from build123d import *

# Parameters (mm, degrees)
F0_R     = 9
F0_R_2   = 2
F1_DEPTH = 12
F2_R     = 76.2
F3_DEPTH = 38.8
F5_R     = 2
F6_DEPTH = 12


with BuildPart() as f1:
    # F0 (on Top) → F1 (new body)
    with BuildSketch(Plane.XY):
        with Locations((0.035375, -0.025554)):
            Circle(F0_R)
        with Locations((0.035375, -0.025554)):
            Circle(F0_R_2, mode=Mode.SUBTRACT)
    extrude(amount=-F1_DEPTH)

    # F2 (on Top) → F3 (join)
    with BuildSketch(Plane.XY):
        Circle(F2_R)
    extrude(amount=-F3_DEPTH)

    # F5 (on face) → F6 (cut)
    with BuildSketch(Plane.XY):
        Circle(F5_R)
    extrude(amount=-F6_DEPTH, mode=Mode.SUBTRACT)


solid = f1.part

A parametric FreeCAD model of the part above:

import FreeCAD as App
import Part
import Sketcher

V = App.Vector
Q = App.Units.Quantity

doc = App.newDocument("Part")
params = doc.addObject("Spreadsheet::Sheet", "Params")
for row, (alias, value) in enumerate([
    ("sketch1_diameter", "18 mm"),
    ("sketch1_diameter2", "4 mm"),
    ("pad1_length", "12 mm"),
    ("sketch2_diameter", "152.4 mm"),
    ("pad2_length", "38.8 mm"),
    ("sketch3_diameter", "4 mm"),
    ("pocket1_length", "12 mm"),
], start=1):
    params.set(f"A{row}", alias)
    params.set(f"B{row}", "=" + value)
    params.setAlias(f"B{row}", alias)

body = doc.addObject("PartDesign::Body", "Body")

sketch1 = doc.addObject("Sketcher::SketchObject", "Sketch")
body.addObject(sketch1)
sketch1.AttachmentSupport = (doc.XY_Plane, [""])
sketch1.MapMode = "FlatFace"
sketch1.addGeometry([
    Part.Circle(V(0, 0, 0), V(0, 0, 1), 9),
    Part.Circle(V(0, 0, 0), V(0, 0, 1), 2),
], False)
sketch1.addConstraint([
    Sketcher.Constraint("Coincident", 1, 3, 0, 3),
    Sketcher.Constraint("Diameter", 0, Q("18 mm")),
    Sketcher.Constraint("Diameter", 1, Q("4 mm")),
    Sketcher.Constraint("DistanceX", -1, 1, 0, 3, Q("0.035375 mm")),
    Sketcher.Constraint("DistanceY", 0, 3, -1, 1, Q("0.025554 mm")),
])
sketch1.setExpression("Constraints[1]", "Params.sketch1_diameter")
sketch1.setExpression("Constraints[2]", "Params.sketch1_diameter2")
pad1 = doc.addObject("PartDesign::Pad", "Pad")
body.addObject(pad1)
pad1.Profile = sketch1
pad1.setExpression("Length", "Params.pad1_length")
pad1.Reversed = True

sketch2 = doc.addObject("Sketcher::SketchObject", "Sketch001")
body.addObject(sketch2)
sketch2.AttachmentSupport = (doc.XY_Plane, [""])
sketch2.MapMode = "FlatFace"
sketch2.addGeometry(Part.Circle(V(0, 0, 0), V(0, 0, 1), 76), False)
sketch2.addConstraint([
    Sketcher.Constraint("Coincident", 0, 3, -1, 1),
    Sketcher.Constraint("Diameter", 0, Q("152.4 mm")),
])
sketch2.setExpression("Constraints[1]", "Params.sketch2_diameter")
pad2 = doc.addObject("PartDesign::Pad", "Pad001")
body.addObject(pad2)
pad2.Profile = sketch2
pad2.setExpression("Length", "Params.pad2_length")
pad2.Reversed = True

sketch3 = doc.addObject("Sketcher::SketchObject", "Sketch002")
body.addObject(sketch3)
sketch3.AttachmentSupport = (doc.XY_Plane, [""])
sketch3.MapMode = "FlatFace"
sketch3.addGeometry(Part.Circle(V(0, 0, 0), V(0, 0, 1), 2), False)
sketch3.addConstraint([
    Sketcher.Constraint("Coincident", 0, 3, -1, 1),
    Sketcher.Constraint("Diameter", 0, Q("4 mm")),
])
sketch3.setExpression("Constraints[1]", "Params.sketch3_diameter")
pocket1 = doc.addObject("PartDesign::Pocket", "Pocket")
body.addObject(pocket1)
pocket1.Profile = sketch3
pocket1.setExpression("Length", "Params.pocket1_length")

doc.recompute()
